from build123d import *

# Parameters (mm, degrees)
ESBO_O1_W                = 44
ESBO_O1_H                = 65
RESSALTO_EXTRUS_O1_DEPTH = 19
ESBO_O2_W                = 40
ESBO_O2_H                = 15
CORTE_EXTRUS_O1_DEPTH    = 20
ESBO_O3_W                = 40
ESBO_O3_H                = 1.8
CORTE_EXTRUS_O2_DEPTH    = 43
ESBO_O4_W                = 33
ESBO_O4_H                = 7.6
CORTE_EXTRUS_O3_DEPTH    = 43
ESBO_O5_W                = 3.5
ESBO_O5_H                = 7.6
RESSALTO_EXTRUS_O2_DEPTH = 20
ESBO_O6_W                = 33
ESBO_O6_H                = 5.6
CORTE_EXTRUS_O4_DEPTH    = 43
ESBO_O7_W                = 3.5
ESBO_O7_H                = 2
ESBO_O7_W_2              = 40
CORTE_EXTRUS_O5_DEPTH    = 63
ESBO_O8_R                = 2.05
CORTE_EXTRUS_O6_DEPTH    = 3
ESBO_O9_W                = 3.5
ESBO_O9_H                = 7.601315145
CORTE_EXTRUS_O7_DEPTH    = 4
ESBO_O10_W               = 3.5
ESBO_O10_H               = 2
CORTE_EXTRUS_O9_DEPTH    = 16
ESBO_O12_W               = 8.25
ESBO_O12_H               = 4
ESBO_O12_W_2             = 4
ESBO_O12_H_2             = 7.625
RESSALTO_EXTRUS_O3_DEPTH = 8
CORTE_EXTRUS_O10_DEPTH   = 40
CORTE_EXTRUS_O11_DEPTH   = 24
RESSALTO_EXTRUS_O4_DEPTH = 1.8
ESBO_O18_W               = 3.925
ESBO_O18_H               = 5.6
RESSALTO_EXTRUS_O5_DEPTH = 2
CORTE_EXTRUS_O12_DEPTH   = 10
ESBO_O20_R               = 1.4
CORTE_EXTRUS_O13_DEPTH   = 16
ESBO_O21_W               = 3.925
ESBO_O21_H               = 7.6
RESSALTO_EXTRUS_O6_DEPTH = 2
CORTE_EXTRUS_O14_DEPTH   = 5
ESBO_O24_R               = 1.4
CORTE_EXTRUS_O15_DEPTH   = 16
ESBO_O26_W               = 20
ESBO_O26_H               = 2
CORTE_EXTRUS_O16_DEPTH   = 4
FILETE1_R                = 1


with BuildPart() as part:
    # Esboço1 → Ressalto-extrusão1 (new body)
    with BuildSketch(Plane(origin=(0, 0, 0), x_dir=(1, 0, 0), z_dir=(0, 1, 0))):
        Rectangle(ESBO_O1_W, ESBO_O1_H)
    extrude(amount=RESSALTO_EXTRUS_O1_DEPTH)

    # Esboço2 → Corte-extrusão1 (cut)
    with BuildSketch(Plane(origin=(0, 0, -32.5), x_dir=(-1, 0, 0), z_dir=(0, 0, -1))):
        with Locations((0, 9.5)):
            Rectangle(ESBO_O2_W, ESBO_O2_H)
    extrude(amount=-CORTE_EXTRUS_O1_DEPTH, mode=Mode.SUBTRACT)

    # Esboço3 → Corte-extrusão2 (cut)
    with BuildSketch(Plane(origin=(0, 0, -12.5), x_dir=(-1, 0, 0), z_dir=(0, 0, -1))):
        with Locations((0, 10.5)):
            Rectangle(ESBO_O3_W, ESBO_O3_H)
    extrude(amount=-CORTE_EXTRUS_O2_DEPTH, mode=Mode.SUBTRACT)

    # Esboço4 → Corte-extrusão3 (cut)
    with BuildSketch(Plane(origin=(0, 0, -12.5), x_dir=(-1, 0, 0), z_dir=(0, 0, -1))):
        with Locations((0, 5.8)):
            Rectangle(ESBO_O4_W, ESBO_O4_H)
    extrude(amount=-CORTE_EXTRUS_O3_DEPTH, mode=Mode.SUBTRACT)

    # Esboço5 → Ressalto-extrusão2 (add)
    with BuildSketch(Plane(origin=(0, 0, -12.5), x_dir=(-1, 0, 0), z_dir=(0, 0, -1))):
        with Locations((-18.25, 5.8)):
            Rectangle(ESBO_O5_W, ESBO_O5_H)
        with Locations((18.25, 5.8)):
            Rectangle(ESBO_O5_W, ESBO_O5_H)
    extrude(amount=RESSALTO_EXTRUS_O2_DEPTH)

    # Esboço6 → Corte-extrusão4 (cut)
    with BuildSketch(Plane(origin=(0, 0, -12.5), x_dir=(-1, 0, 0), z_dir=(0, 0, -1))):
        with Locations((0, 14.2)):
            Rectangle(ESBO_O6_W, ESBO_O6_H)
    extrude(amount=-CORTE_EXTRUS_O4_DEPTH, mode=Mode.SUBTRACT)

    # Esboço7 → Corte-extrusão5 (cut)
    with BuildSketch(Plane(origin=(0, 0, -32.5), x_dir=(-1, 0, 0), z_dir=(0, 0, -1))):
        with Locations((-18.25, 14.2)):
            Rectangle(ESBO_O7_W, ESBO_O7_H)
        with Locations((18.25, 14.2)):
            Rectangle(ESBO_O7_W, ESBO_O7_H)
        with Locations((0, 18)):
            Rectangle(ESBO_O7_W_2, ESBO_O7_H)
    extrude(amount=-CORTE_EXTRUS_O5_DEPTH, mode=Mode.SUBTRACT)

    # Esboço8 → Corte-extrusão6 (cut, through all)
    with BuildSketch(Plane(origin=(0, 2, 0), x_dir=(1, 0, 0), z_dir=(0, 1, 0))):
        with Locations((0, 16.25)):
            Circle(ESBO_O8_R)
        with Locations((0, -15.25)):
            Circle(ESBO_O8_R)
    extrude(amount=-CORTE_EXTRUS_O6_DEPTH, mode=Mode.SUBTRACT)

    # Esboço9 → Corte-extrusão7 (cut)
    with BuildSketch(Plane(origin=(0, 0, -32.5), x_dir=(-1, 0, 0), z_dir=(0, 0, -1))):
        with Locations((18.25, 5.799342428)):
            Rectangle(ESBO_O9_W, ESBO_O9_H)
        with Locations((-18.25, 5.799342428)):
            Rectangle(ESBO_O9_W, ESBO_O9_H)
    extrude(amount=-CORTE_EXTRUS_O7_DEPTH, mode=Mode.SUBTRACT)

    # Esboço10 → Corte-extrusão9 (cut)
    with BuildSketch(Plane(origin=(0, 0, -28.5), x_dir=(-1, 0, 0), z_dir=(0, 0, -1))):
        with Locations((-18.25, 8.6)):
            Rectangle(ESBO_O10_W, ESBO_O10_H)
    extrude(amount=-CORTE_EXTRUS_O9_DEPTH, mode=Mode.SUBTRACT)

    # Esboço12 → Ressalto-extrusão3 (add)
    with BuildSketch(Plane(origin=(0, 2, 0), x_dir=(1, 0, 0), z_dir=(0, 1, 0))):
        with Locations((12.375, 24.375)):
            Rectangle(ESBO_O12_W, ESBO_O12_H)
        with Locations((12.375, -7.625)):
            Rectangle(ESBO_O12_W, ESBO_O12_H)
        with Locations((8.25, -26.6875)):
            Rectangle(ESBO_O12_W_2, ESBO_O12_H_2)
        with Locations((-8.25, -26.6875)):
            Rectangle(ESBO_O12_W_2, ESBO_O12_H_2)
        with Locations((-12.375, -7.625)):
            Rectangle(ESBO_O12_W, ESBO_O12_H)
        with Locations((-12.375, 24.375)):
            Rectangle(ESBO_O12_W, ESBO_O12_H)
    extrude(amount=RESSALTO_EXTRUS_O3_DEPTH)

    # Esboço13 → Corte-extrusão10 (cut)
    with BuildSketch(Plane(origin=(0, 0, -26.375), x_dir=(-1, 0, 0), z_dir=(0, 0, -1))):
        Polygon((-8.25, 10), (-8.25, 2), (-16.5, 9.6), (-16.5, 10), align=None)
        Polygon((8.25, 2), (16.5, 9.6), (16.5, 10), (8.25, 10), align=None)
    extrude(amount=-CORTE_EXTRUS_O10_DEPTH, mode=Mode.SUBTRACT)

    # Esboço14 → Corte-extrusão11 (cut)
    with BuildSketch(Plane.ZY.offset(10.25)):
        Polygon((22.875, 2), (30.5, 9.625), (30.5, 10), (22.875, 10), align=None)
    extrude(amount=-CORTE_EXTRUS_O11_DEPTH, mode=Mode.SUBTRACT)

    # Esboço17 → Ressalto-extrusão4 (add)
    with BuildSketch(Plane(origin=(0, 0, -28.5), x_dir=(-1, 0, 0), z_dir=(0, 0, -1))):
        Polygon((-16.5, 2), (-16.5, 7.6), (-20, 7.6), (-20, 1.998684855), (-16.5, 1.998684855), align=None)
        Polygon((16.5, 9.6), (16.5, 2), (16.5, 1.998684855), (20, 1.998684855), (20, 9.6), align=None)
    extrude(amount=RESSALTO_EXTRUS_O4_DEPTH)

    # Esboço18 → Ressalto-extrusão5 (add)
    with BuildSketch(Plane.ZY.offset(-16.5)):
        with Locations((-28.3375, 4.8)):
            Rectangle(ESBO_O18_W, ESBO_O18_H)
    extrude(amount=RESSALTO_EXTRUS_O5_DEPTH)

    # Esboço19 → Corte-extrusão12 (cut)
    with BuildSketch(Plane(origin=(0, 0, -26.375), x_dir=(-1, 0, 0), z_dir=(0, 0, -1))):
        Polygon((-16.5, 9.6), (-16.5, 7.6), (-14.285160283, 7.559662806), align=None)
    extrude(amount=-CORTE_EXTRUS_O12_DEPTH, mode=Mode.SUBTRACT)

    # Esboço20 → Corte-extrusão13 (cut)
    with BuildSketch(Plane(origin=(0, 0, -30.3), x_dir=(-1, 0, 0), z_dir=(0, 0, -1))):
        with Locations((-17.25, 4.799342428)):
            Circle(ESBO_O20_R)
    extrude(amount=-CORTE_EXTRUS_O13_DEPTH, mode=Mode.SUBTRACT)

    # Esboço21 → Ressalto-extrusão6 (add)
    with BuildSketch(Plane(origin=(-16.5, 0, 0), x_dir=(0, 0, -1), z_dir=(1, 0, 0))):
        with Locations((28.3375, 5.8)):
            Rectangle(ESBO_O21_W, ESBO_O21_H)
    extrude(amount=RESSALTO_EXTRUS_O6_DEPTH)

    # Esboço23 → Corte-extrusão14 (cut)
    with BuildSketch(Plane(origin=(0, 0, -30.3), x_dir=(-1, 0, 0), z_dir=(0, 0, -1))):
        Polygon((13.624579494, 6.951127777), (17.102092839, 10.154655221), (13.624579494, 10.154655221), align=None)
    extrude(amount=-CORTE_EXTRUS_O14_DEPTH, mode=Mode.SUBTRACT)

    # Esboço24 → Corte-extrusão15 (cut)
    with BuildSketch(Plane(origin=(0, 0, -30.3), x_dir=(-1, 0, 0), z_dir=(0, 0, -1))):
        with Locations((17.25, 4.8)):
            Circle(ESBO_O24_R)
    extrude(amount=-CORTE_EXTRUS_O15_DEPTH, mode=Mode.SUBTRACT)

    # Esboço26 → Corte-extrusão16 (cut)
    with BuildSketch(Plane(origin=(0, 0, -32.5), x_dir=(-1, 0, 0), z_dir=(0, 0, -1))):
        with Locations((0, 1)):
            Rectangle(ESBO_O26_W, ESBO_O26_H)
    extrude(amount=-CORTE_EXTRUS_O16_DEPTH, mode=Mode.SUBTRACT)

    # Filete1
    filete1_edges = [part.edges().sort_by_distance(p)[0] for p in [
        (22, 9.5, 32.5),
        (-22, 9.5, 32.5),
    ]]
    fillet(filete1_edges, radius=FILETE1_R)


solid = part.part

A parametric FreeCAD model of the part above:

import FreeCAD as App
import Part
import Sketcher

V = App.Vector
Q = App.Units.Quantity


def edges_at(feature, points):
    """Names of the edges that pass closest to the given points."""
    edges = feature.Shape.Edges
    near = lambda p: min(range(len(edges)), key=lambda i: edges[i].distToShape(Part.Vertex(*p))[0])
    return sorted({f"Edge{near(p) + 1}" for p in points})

doc = App.newDocument("Part")
params = doc.addObject("Spreadsheet::Sheet", "Params")
for row, (alias, value) in enumerate([
    ("sketch1_width", "44 mm"),
    ("sketch1_height", "65 mm"),
    ("pad1_length", "19 mm"),
    ("sketch2_width", "40 mm"),
    ("sketch2_height", "15 mm"),
    ("pocket1_length", "20 mm"),
    ("sketch3_width", "40 mm"),
    ("sketch3_height", "1.8 mm"),
    ("pocket2_length", "43 mm"),
    ("sketch4_width", "33 mm"),
    ("sketch4_height", "7.6 mm"),
    ("pocket3_length", "43 mm"),
    ("sketch5_width", "3.5 mm"),
    ("sketch5_height", "7.6 mm"),
    ("pad2_length", "20 mm"),
    ("sketch6_width", "33 mm"),
    ("sketch6_height", "5.6 mm"),
    ("pocket4_length", "43 mm"),
    ("sketch7_width", "40 mm"),
    ("sketch7_height", "2 mm"),
    ("sketch7_width2", "3.5 mm"),
    ("pocket5_length", "63 mm"),
    ("sketch8_diameter", "4.1 mm"),
    ("sketch9_width", "3.5 mm"),
    ("pocket7_length", "4 mm"),
    ("sketch10_height", "2 mm"),
    ("sketch10_width", "3.5 mm"),
    ("pocket8_length", "16 mm"),
    ("sketch11_width", "4 mm"),
    ("sketch11_width2", "8.25 mm"),
    ("pad3_length", "8 mm"),
    ("sketch12_height", "8 mm"),
    ("sketch12_height2", "0.4 mm"),
    ("sketch12_width", "8.25 mm"),
    ("pocket9_length", "40 mm"),
    ("sketch13_width", "8 mm"),
    ("pocket10_length", "24 mm"),
    ("sketch14_width", "3.5 mm"),
    ("pad4_length", "1.8 mm"),
    ("sketch15_width", "5.6 mm"),
    ("pad5_length", "2 mm"),
    ("sketch16_height", "2 mm"),
    ("pocket11_length", "10 mm"),
    ("sketch17_diameter", "2.8 mm"),
    ("pocket12_length", "16 mm"),
    ("sketch18_width", "7.6 mm"),
    ("pad6_length", "2 mm"),
    ("pocket13_length", "5 mm"),
    ("sketch20_diameter", "2.8 mm"),
    ("pocket14_length", "16 mm"),
    ("sketch21_width", "20 mm"),
    ("sketch21_height", "2 mm"),
    ("pocket15_length", "4 mm"),
    ("fillet_radius", "1 mm"),
], start=1):
    params.set(f"A{row}", alias)
    params.set(f"B{row}", "=" + value)
    params.setAlias(f"B{row}", alias)

body = doc.addObject("PartDesign::Body", "Body")

# Sketch on XZ plane
sketch1 = body.newObject("Sketcher::SketchObject", "Sketch")
sketch1.AttachmentSupport = (doc.getObject("XZ_Plane"), [""])
sketch1.MapMode = "FlatFace"
sketch1.addGeometry(Part.LineSegment(V(-22, -32, 0), V(-22, 32, 0)), False)
sketch1.addGeometry(Part.LineSegment(V(-22, 32, 0), V(22, 32, 0)), False)
sketch1.addGeometry(Part.LineSegment(V(22, 32, 0), V(22, -32, 0)), False)
sketch1.addGeometry(Part.LineSegment(V(22, -32, 0), V(-22, -32, 0)), False)
sketch1.addConstraint(Sketcher.Constraint("Coincident", 0, 2, 1, 1))
sketch1.addConstraint(Sketcher.Constraint("Coincident", 1, 2, 2, 1))
sketch1.addConstraint(Sketcher.Constraint("Coincident", 2, 2, 3, 1))
sketch1.addConstraint(Sketcher.Constraint("Coincident", 3, 2, 0, 1))
sketch1.addConstraint(Sketcher.Constraint("Vertical", 0))
sketch1.addConstraint(Sketcher.Constraint("Horizontal", 1))
sketch1.addConstraint(Sketcher.Constraint("Vertical", 2))
sketch1.addConstraint(Sketcher.Constraint("Horizontal", 3))
sketch1.addConstraint(Sketcher.Constraint("Symmetric", 0, 2, 2, 2, -1, 1))
sketch1.addConstraint(Sketcher.Constraint("DistanceX", 1, 1, 1, 2, 44.0))
sketch1.addConstraint(Sketcher.Constraint("DistanceY", 0, 1, 0, 2, 65.0))
sketch1.setExpression("Constraints[9]", "Params.sketch1_width")
sketch1.setExpression("Constraints[10]", "Params.sketch1_height")
pad1 = body.newObject("PartDesign::Pad", "Pad")
pad1.Profile = sketch1
pad1.setExpression("Length", "Params.pad1_length")
pad1.Reversed = True

# Sketch on XY plane
sketch2 = body.newObject("Sketcher::SketchObject", "Sketch001")
sketch2.AttachmentSupport = (doc.getObject("XY_Plane"), [""])
sketch2.MapMode = "FlatFace"
sketch2.AttachmentOffset = App.Placement(V(0, 0, -32.5), App.Rotation())
sketch2.addGeometry(Part.LineSegment(V(20, 17, 0), V(20, 2, 0)), False)
sketch2.addGeometry(Part.LineSegment(V(20, 2, 0), V(-20, 2, 0)), False)
sketch2.addGeometry(Part.LineSegment(V(-20, 2, 0), V(-20, 17, 0)), False)
sketch2.addGeometry(Part.LineSegment(V(-20, 17, 0), V(20, 17, 0)), False)
sketch2.addConstraint(Sketcher.Constraint("Coincident", 0, 2, 1, 1))
sketch2.addConstraint(Sketcher.Constraint("Coincident", 1, 2, 2, 1))
sketch2.addConstraint(Sketcher.Constraint("Coincident", 2, 2, 3, 1))
sketch2.addConstraint(Sketcher.Constraint("Coincident", 3, 2, 0, 1))
sketch2.addConstraint(Sketcher.Constraint("Vertical", 0))
sketch2.addConstraint(Sketcher.Constraint("Horizontal", 1))
sketch2.addConstraint(Sketcher.Constraint("Vertical", 2))
sketch2.addConstraint(Sketcher.Constraint("Horizontal", 3))
sketch2.addConstraint(Sketcher.Constraint("DistanceX", 1, 2, 1, 1, 40.0))
sketch2.addConstraint(Sketcher.Constraint("DistanceY", 0, 2, 0, 1, 15.0))
sketch2.addConstraint(Sketcher.Constraint("DistanceX", -1, 1, 0, 2, 20.0))
sketch2.addConstraint(Sketcher.Constraint("DistanceY", -1, 1, 0, 2, 2.0))
sketch2.setExpression("Constraints[8]", "Params.sketch2_width")
sketch2.setExpression("Constraints[9]", "Params.sketch2_height")
pocket1 = body.newObject("PartDesign::Pocket", "Pocket")
pocket1.Profile = sketch2
pocket1.setExpression("Length", "Params.pocket1_length")
pocket1.Reversed = True

# Sketch on XY plane
sketch3 = body.newObject("Sketcher::SketchObject", "Sketch002")
sketch3.AttachmentSupport = (doc.getObject("XY_Plane"), [""])
sketch3.MapMode = "FlatFace"
sketch3.AttachmentOffset = App.Placement(V(0, 0, -12.5), App.Rotation())
sketch3.addGeometry(Part.LineSegment(V(20, 11.4, 0), V(20, 9.6, 0)), False)
sketch3.addGeometry(Part.LineSegment(V(20, 9.6, 0), V(-20, 9.6, 0)), False)
sketch3.addGeometry(Part.LineSegment(V(-20, 9.6, 0), V(-20, 11.4, 0)), False)
sketch3.addGeometry(Part.LineSegment(V(-20, 11.4, 0), V(20, 11.4, 0)), False)
sketch3.addConstraint(Sketcher.Constraint("Coincident", 0, 2, 1, 1))
sketch3.addConstraint(Sketcher.Constraint("Coincident", 1, 2, 2, 1))
sketch3.addConstraint(Sketcher.Constraint("Coincident", 2, 2, 3, 1))
sketch3.addConstraint(Sketcher.Constraint("Coincident", 3, 2, 0, 1))
sketch3.addConstraint(Sketcher.Constraint("Vertical", 0))
sketch3.addConstraint(Sketcher.Constraint("Horizontal", 1))
sketch3.addConstraint(Sketcher.Constraint("Vertical", 2))
sketch3.addConstraint(Sketcher.Constraint("Horizontal", 3))
sketch3.addConstraint(Sketcher.Constraint("DistanceX", 1, 2, 1, 1, 40.0))
sketch3.addConstraint(Sketcher.Constraint("DistanceY", 0, 2, 0, 1, 1.8))
sketch3.addConstraint(Sketcher.Constraint("DistanceX", -1, 1, 0, 2, 20.0))
sketch3.addConstraint(Sketcher.Constraint("DistanceY", -1, 1, 0, 2, 9.6))
sketch3.setExpression("Constraints[8]", "Params.sketch3_width")
sketch3.setExpression("Constraints[9]", "Params.sketch3_height")
pocket2 = body.newObject("PartDesign::Pocket", "Pocket001")
pocket2.Profile = sketch3
pocket2.setExpression("Length", "Params.pocket2_length")
pocket2.Reversed = True

# Sketch on XY plane
sketch4 = body.newObject("Sketcher::SketchObject", "Sketch003")
sketch4.AttachmentSupport = (doc.getObject("XY_Plane"), [""])
sketch4.MapMode = "FlatFace"
sketch4.AttachmentOffset = App.Placement(V(0, 0, -12.5), App.Rotation())
sketch4.addGeometry(Part.LineSegment(V(16, 10, 0), V(16, 2, 0)), False)
sketch4.addGeometry(Part.LineSegment(V(16, 2, 0), V(-16, 2, 0)), False)
sketch4.addGeometry(Part.LineSegment(V(-16, 2, 0), V(-16, 10, 0)), False)
sketch4.addGeometry(Part.LineSegment(V(-16, 10, 0), V(16, 10, 0)), False)
sketch4.addConstraint(Sketcher.Constraint("Coincident", 0, 2, 1, 1))
sketch4.addConstraint(Sketcher.Constraint("Coincident", 1, 2, 2, 1))
sketch4.addConstraint(Sketcher.Constraint("Coincident", 2, 2, 3, 1))
sketch4.addConstraint(Sketcher.Constraint("Coincident", 3, 2, 0, 1))
sketch4.addConstraint(Sketcher.Constraint("Vertical", 0))
sketch4.addConstraint(Sketcher.Constraint("Horizontal", 1))
sketch4.addConstraint(Sketcher.Constraint("Vertical", 2))
sketch4.addConstraint(Sketcher.Constraint("Horizontal", 3))
sketch4.addConstraint(Sketcher.Constraint("DistanceX", 1, 2, 1, 1, 33.0))
sketch4.addConstraint(Sketcher.Constraint("DistanceY", 0, 2, 0, 1, 7.6))
sketch4.addConstraint(Sketcher.Constraint("DistanceY", -1, 1, 0, 2, 2.0))
sketch4.addConstraint(Sketcher.Constraint("DistanceX", -1, 1, 0, 2, 16.5))
sketch4.setExpression("Constraints[8]", "Params.sketch4_width")
sketch4.setExpression("Constraints[9]", "Params.sketch4_height")
pocket3 = body.newObject("PartDesign::Pocket", "Pocket002")
pocket3.Profile = sketch4
pocket3.setExpression("Length", "Params.pocket3_length")
pocket3.Reversed = True

# Sketch on XY plane
sketch5 = body.newObject("Sketcher::SketchObject", "Sketch004")
sketch5.AttachmentSupport = (doc.getObject("XY_Plane"), [""])
sketch5.MapMode = "FlatFace"
sketch5.AttachmentOffset = App.Placement(V(0, 0, -12.5), App.Rotation())
sketch5.addGeometry(Part.LineSegment(V(20, 9.6, 0), V(20, 2, 0)), False)
sketch5.addGeometry(Part.LineSegment(V(20, 2, 0), V(16.5, 2, 0)), False)
sketch5.addGeometry(Part.LineSegment(V(16.5, 2, 0), V(16.5, 9.6, 0)), False)
sketch5.addGeometry(Part.LineSegment(V(16.5, 9.6, 0), V(20, 9.6, 0)), False)
sketch5.addGeometry(Part.LineSegment(V(-16.5, 9.6, 0), V(-16.5, 2, 0)), False)
sketch5.addGeometry(Part.LineSegment(V(-16.5, 2, 0), V(-20, 2, 0)), False)
sketch5.addGeometry(Part.LineSegment(V(-20, 2, 0), V(-20, 9.6, 0)), False)
sketch5.addGeometry(Part.LineSegment(V(-20, 9.6, 0), V(-16.5, 9.6, 0)), False)
sketch5.addConstraint(Sketcher.Constraint("Coincident", 0, 2, 1, 1))
sketch5.addConstraint(Sketcher.Constraint("Coincident", 1, 2, 2, 1))
sketch5.addConstraint(Sketcher.Constraint("Coincident", 2, 2, 3, 1))
sketch5.addConstraint(Sketcher.Constraint("Coincident", 3, 2, 0, 1))
sketch5.addConstraint(Sketcher.Constraint("Coincident", 4, 2, 5, 1))
sketch5.addConstraint(Sketcher.Constraint("Coincident", 5, 2, 6, 1))
sketch5.addConstraint(Sketcher.Constraint("Coincident", 6, 2, 7, 1))
sketch5.addConstraint(Sketcher.Constraint("Coincident", 7, 2, 4, 1))
sketch5.addConstraint(Sketcher.Constraint("Vertical", 0))
sketch5.addConstraint(Sketcher.Constraint("Horizontal", 1))
sketch5.addConstraint(Sketcher.Constraint("Vertical", 2))
sketch5.addConstraint(Sketcher.Constraint("Horizontal", 3))
sketch5.addConstraint(Sketcher.Constraint("Vertical", 4))
sketch5.addConstraint(Sketcher.Constraint("Horizontal", 5))
sketch5.addConstraint(Sketcher.Constraint("Vertical", 6))
sketch5.addConstraint(Sketcher.Constraint("Horizontal", 7))
sketch5.addConstraint(Sketcher.Constraint("Symmetric", 1, 2, 4, 2, -2))
sketch5.addConstraint(Sketcher.Constraint("Symmetric", 3, 2, 6, 2, -2))
sketch5.addConstraint(Sketcher.Constraint("DistanceX", 1, 2, 1, 1, 3.5))
sketch5.addConstraint(Sketcher.Constraint("DistanceY", 0, 2, 0, 1, 7.6))
sketch5.addConstraint(Sketcher.Constraint("DistanceX", -1, 1, 0, 2, 20.0))
sketch5.addConstraint(Sketcher.Constraint("DistanceY", -1, 1, 0, 2, 2.0))
sketch5.setExpression("Constraints[18]", "Params.sketch5_width")
sketch5.setExpression("Constraints[19]", "Params.sketch5_height")
pad2 = body.newObject("PartDesign::Pad", "Pad001")
pad2.Profile = sketch5
pad2.setExpression("Length", "Params.pad2_length")
pad2.Reversed = True

# Sketch on XY plane
sketch6 = body.newObject("Sketcher::SketchObject", "Sketch005")
sketch6.AttachmentSupport = (doc.getObject("XY_Plane"), [""])
sketch6.MapMode = "FlatFace"
sketch6.AttachmentOffset = App.Placement(V(0, 0, -12.5), App.Rotation())
sketch6.addGeometry(Part.LineSegment(V(16, 17, 0), V(16, 11, 0)), False)
sketch6.addGeometry(Part.LineSegment(V(16, 11, 0), V(-16, 11, 0)), False)
sketch6.addGeometry(Part.LineSegment(V(-16, 11, 0), V(-16, 17, 0)), False)
sketch6.addGeometry(Part.LineSegment(V(-16, 17, 0), V(16, 17, 0)), False)
sketch6.addConstraint(Sketcher.Constraint("Coincident", 0, 2, 1, 1))
sketch6.addConstraint(Sketcher.Constraint("Coincident", 1, 2, 2, 1))
sketch6.addConstraint(Sketcher.Constraint("Coincident", 2, 2, 3, 1))
sketch6.addConstraint(Sketcher.Constraint("Coincident", 3, 2, 0, 1))
sketch6.addConstraint(Sketcher.Constraint("Vertical", 0))
sketch6.addConstraint(Sketcher.Constraint("Horizontal", 1))
sketch6.addConstraint(Sketcher.Constraint("Vertical", 2))
sketch6.addConstraint(Sketcher.Constraint("Horizontal", 3))
sketch6.addConstraint(Sketcher.Constraint("DistanceX", 1, 2, 1, 1, 33.0))
sketch6.addConstraint(Sketcher.Constraint("DistanceY", 0, 2, 0, 1, 5.6))
sketch6.addConstraint(Sketcher.Constraint("DistanceY", -1, 1, 2, 2, 17.0))
sketch6.addConstraint(Sketcher.Constraint("DistanceX", -1, 1, 0, 2, 16.5))
sketch6.setExpression("Constraints[8]", "Params.sketch6_width")
sketch6.setExpression("Constraints[9]", "Params.sketch6_height")
pocket4 = body.newObject("PartDesign::Pocket", "Pocket003")
pocket4.Profile = sketch6
pocket4.setExpression("Length", "Params.pocket4_length")
pocket4.Reversed = True

# Sketch on XY plane
sketch7 = body.newObject("Sketcher::SketchObject", "Sketch006")
sketch7.AttachmentSupport = (doc.getObject("XY_Plane"), [""])
sketch7.MapMode = "FlatFace"
sketch7.AttachmentOffset = App.Placement(V(0, 0, -32.5), App.Rotation())
sketch7.addGeometry(Part.LineSegment(V(20, 15.2, 0), V(20, 13.2, 0)), False)
sketch7.addGeometry(Part.LineSegment(V(20, 13.2, 0), V(16.5, 13.2, 0)), False)
sketch7.addGeometry(Part.LineSegment(V(16.5, 13.2, 0), V(16.5, 15.2, 0)), False)
sketch7.addGeometry(Part.LineSegment(V(16.5, 15.2, 0), V(20, 15.2, 0)), False)
sketch7.addGeometry(Part.LineSegment(V(-16.5, 15.2, 0), V(-16.5, 13.2, 0)), False)
sketch7.addGeometry(Part.LineSegment(V(-16.5, 13.2, 0), V(-20, 13.2, 0)), False)
sketch7.addGeometry(Part.LineSegment(V(-20, 13.2, 0), V(-20, 15.2, 0)), False)
sketch7.addGeometry(Part.LineSegment(V(-20, 15.2, 0), V(-16.5, 15.2, 0)), False)
sketch7.addGeometry(Part.LineSegment(V(20, 19, 0), V(20, 17, 0)), False)
sketch7.addGeometry(Part.LineSegment(V(20, 17, 0), V(-20, 17, 0)), False)
sketch7.addGeometry(Part.LineSegment(V(-20, 17, 0), V(-20, 19, 0)), False)
sketch7.addGeometry(Part.LineSegment(V(-20, 19, 0), V(20, 19, 0)), False)
sketch7.addConstraint(Sketcher.Constraint("Coincident", 0, 2, 1, 1))
sketch7.addConstraint(Sketcher.Constraint("Coincident", 1, 2, 2, 1))
sketch7.addConstraint(Sketcher.Constraint("Coincident", 2, 2, 3, 1))
sketch7.addConstraint(Sketcher.Constraint("Coincident", 3, 2, 0, 1))
sketch7.addConstraint(Sketcher.Constraint("Coincident", 4, 2, 5, 1))
sketch7.addConstraint(Sketcher.Constraint("Coincident", 5, 2, 6, 1))
sketch7.addConstraint(Sketcher.Constraint("Coincident", 6, 2, 7, 1))
sketch7.addConstraint(Sketcher.Constraint("Coincident", 7, 2, 4, 1))
sketch7.addConstraint(Sketcher.Constraint("Coincident", 8, 2, 9, 1))
sketch7.addConstraint(Sketcher.Constraint("Coincident", 9, 2, 10, 1))
sketch7.addConstraint(Sketcher.Constraint("Coincident", 10, 2, 11, 1))
sketch7.addConstraint(Sketcher.Constraint("Coincident", 11, 2, 8, 1))
sketch7.addConstraint(Sketcher.Constraint("Vertical", 0))
sketch7.addConstraint(Sketcher.Constraint("Horizontal", 1))
sketch7.addConstraint(Sketcher.Constraint("Vertical", 2))
sketch7.addConstraint(Sketcher.Constraint("Horizontal", 3))
sketch7.addConstraint(Sketcher.Constraint("Vertical", 4))
sketch7.addConstraint(Sketcher.Constraint("Horizontal", 5))
sketch7.addConstraint(Sketcher.Constraint("Vertical", 6))
sketch7.addConstraint(Sketcher.Constraint("Horizontal", 7))
sketch7.addConstraint(Sketcher.Constraint("Vertical", 8))
sketch7.addConstraint(Sketcher.Constraint("Horizontal", 9))
sketch7.addConstraint(Sketcher.Constraint("Vertical", 10))
sketch7.addConstraint(Sketcher.Constraint("Horizontal", 11))
sketch7.addConstraint(Sketcher.Constraint("Symmetric", 1, 2, 4, 2, -2))
sketch7.addConstraint(Sketcher.Constraint("Symmetric", 3, 2, 6, 2, -2))
sketch7.addConstraint(Sketcher.Constraint("Vertical", 3, 2, 8, 2))
sketch7.addConstraint(Sketcher.Constraint("Vertical", 6, 2, 9, 2))
sketch7.addConstraint(Sketcher.Constraint("Equal", 6, 8))
sketch7.addConstraint(Sketcher.Constraint("DistanceX", 9, 2, 9, 1, 40.0))
sketch7.addConstraint(Sketcher.Constraint("DistanceY", 0, 2, 0, 1, 2.0))
sketch7.addConstraint(Sketcher.Constraint("DistanceX", 1, 2, 1, 1, 3.5))
sketch7.addConstraint(Sketcher.Constraint("DistanceY", -1, 1, 8, 2, 17.0))
sketch7.addConstraint(Sketcher.Constraint("DistanceY", -1, 1, 0, 2, 13.2))
sketch7.setExpression("Constraints[29]", "Params.sketch7_width")
sketch7.setExpression("Constraints[30]", "Params.sketch7_height")
sketch7.setExpression("Constraints[31]", "Params.sketch7_width2")
pocket5 = body.newObject("PartDesign::Pocket", "Pocket004")
pocket5.Profile = sketch7
pocket5.setExpression("Length", "Params.pocket5_length")
pocket5.Reversed = True

# Sketch on XZ plane
sketch8 = body.newObject("Sketcher::SketchObject", "Sketch007")
sketch8.AttachmentSupport = (doc.getObject("XZ_Plane"), [""])
sketch8.MapMode = "FlatFace"
sketch8.AttachmentOffset = App.Placement(V(0, 0, -2), App.Rotation())
sketch8.addGeometry(Part.Circle(V(0, -16.2, 0), V(0, 0, 1), 2), False)
sketch8.addGeometry(Part.Circle(V(0, 15.2, 0), V(0, 0, 1), 2), False)
sketch8.addConstraint(Sketcher.Constraint("Equal", 0, 1))
sketch8.addConstraint(Sketcher.Constraint("PointOnObject", 0, 3, -2))
sketch8.addConstraint(Sketcher.Constraint("PointOnObject", 1, 3, -2))
sketch8.addConstraint(Sketcher.Constraint("Diameter", 0, 4.1))
sketch8.addConstraint(Sketcher.Constraint("DistanceY", 0, 3, 1, 3, 31.5))
sketch8.addConstraint(Sketcher.Constraint("DistanceY", 0, 3, -1, 1, 16.25))
sketch8.setExpression("Constraints[3]", "Params.sketch8_diameter")
pocket6 = body.newObject("PartDesign::Pocket", "Pocket005")
pocket6.Profile = sketch8
pocket6.Type = "ThroughAll"
pocket6.Reversed = True

# Sketch on XY plane
sketch9 = body.newObject("Sketcher::SketchObject", "Sketch008")
sketch9.AttachmentSupport = (doc.getObject("XY_Plane"), [""])
sketch9.MapMode = "FlatFace"
sketch9.AttachmentOffset = App.Placement(V(0, 0, -32.5), App.Rotation())
sketch9.addGeometry(Part.LineSegment(V(-16.5, 9.6, 0), V(-16.5, 2, 0)), False)
sketch9.addGeometry(Part.LineSegment(V(-16.5, 2, 0), V(-20, 2, 0)), False)
sketch9.addGeometry(Part.LineSegment(V(-20, 2, 0), V(-20, 9.6, 0)), False)
sketch9.addGeometry(Part.LineSegment(V(-20, 9.6, 0), V(-16.5, 9.6, 0)), False)
sketch9.addGeometry(Part.LineSegment(V(20, 9.6, 0), V(20, 2, 0)), False)
sketch9.addGeometry(Part.LineSegment(V(20, 2, 0), V(16.5, 2, 0)), False)
sketch9.addGeometry(Part.LineSegment(V(16.5, 2, 0), V(16.5, 9.6, 0)), False)
sketch9.addGeometry(Part.LineSegment(V(16.5, 9.6, 0), V(20, 9.6, 0)), False)
sketch9.addConstraint(Sketcher.Constraint("Coincident", 0, 2, 1, 1))
sketch9.addConstraint(Sketcher.Constraint("Coincident", 1, 2, 2, 1))
sketch9.addConstraint(Sketcher.Constraint("Coincident", 2, 2, 3, 1))
sketch9.addConstraint(Sketcher.Constraint("Coincident", 3, 2, 0, 1))
sketch9.addConstraint(Sketcher.Constraint("Coincident", 4, 2, 5, 1))
sketch9.addConstraint(Sketcher.Constraint("Coincident", 5, 2, 6, 1))
sketch9.addConstraint(Sketcher.Constraint("Coincident", 6, 2, 7, 1))
sketch9.addConstraint(Sketcher.Constraint("Coincident", 7, 2, 4, 1))
sketch9.addConstraint(Sketcher.Constraint("Vertical", 0))
sketch9.addConstraint(Sketcher.Constraint("Horizontal", 1))
sketch9.addConstraint(Sketcher.Constraint("Vertical", 2))
sketch9.addConstraint(Sketcher.Constraint("Horizontal", 3))
sketch9.addConstraint(Sketcher.Constraint("Vertical", 4))
sketch9.addConstraint(Sketcher.Constraint("Horizontal", 5))
sketch9.addConstraint(Sketcher.Constraint("Vertical", 6))
sketch9.addConstraint(Sketcher.Constraint("Horizontal", 7))
sketch9.addConstraint(Sketcher.Constraint("Symmetric", 1, 2, 4, 2, -2))
sketch9.addConstraint(Sketcher.Constraint("Symmetric", 3, 2, 6, 2, -2))
sketch9.addConstraint(Sketcher.Constraint("DistanceX", 1, 2, 1, 1, 3.5))
sketch9.addConstraint(Sketcher.Constraint("DistanceX", 1, 2, -1, 1, 20.0))
sketch9.addConstraint(Sketcher.Constraint("DistanceY", -1, 1, 2, 2, 9.6))
sketch9.addConstraint(Sketcher.Constraint("DistanceY", 0, 2, 0, 1, 7.601315))
sketch9.setExpression("Constraints[18]", "Params.sketch9_width")
pocket7 = body.newObject("PartDesign::Pocket", "Pocket006")
pocket7.Profile = sketch9
pocket7.setExpression("Length", "Params.pocket7_length")
pocket7.Reversed = True

# Sketch on XY plane
sketch10 = body.newObject("Sketcher::SketchObject", "Sketch009")
sketch10.AttachmentSupport = (doc.getObject("XY_Plane"), [""])
sketch10.MapMode = "FlatFace"
sketch10.AttachmentOffset = App.Placement(V(0, 0, -28.5), App.Rotation())
sketch10.addGeometry(Part.LineSegment(V(20, 9.6, 0), V(20, 7.6, 0)), False)
sketch10.addGeometry(Part.LineSegment(V(20, 7.6, 0), V(16.5, 7.6, 0)), False)
sketch10.addGeometry(Part.LineSegment(V(16.5, 7.6, 0), V(16.5, 9.6, 0)), False)
sketch10.addGeometry(Part.LineSegment(V(16.5, 9.6, 0), V(20, 9.6, 0)), False)
sketch10.addConstraint(Sketcher.Constraint("Coincident", 0, 2, 1, 1))
sketch10.addConstraint(Sketcher.Constraint("Coincident", 1, 2, 2, 1))
sketch10.addConstraint(Sketcher.Constraint("Coincident", 2, 2, 3, 1))
sketch10.addConstraint(Sketcher.Constraint("Coincident", 3, 2, 0, 1))
sketch10.addConstraint(Sketcher.Constraint("Vertical", 0))
sketch10.addConstraint(Sketcher.Constraint("Horizontal", 1))
sketch10.addConstraint(Sketcher.Constraint("Vertical", 2))
sketch10.addConstraint(Sketcher.Constraint("Horizontal", 3))
sketch10.addConstraint(Sketcher.Constraint("DistanceY", 0, 2, 0, 1, 2.0))
sketch10.addConstraint(Sketcher.Constraint("DistanceX", 1, 2, 1, 1, 3.5))
sketch10.addConstraint(Sketcher.Constraint("DistanceX", -1, 1, 0, 2, 20.0))
sketch10.addConstraint(Sketcher.Constraint("DistanceY", -1, 1, 0, 2, 7.6))
sketch10.setExpression("Constraints[8]", "Params.sketch10_height")
sketch10.setExpression("Constraints[9]", "Params.sketch10_width")
pocket8 = body.newObject("PartDesign::Pocket", "Pocket007")
pocket8.Profile = sketch10
pocket8.setExpression("Length", "Params.pocket8_length")
pocket8.Reversed = True

# Sketch on XZ plane
sketch11 = body.newObject("Sketcher::SketchObject", "Sketch010")
sketch11.AttachmentSupport = (doc.getObject("XZ_Plane"), [""])
sketch11.MapMode = "FlatFace"
sketch11.AttachmentOffset = App.Placement(V(0, 0, -2), App.Rotation())
sketch11.addGeometry(Part.LineSegment(V(8.2, -26.4, 0), V(8.2, -22.4, 0)), False)
sketch11.addGeometry(Part.LineSegment(V(8.2, -22.4, 0), V(16.5, -22.4, 0)), False)
sketch11.addGeometry(Part.LineSegment(V(16.5, -22.4, 0), V(16.5, -26.4, 0)), False)
sketch11.addGeometry(Part.LineSegment(V(16.5, -26.4, 0), V(8.2, -26.4, 0)), False)
sketch11.addGeometry(Part.LineSegment(V(8.2, 5.6, 0), V(8.2, 9.6, 0)), False)
sketch11.addGeometry(Part.LineSegment(V(8.2, 9.6, 0), V(16.5, 9.6, 0)), False)
sketch11.addGeometry(Part.LineSegment(V(16.5, 9.6, 0), V(16.5, 5.6, 0)), False)
sketch11.addGeometry(Part.LineSegment(V(16.5, 5.6, 0), V(8.2, 5.6, 0)), False)
sketch11.addGeometry(Part.LineSegment(V(6.2, 22.9, 0), V(6.2, 30.5, 0)), False)
sketch11.addGeometry(Part.LineSegment(V(6.2, 30.5, 0), V(10.2, 30.5, 0)), False)
sketch11.addGeometry(Part.LineSegment(V(10.2, 30.5, 0), V(10.2, 22.9, 0)), False)
sketch11.addGeometry(Part.LineSegment(V(10.2, 22.9, 0), V(6.2, 22.9, 0)), False)
sketch11.addGeometry(Part.LineSegment(V(-10.2, 22.9, 0), V(-10.2, 30.5, 0)), False)
sketch11.addGeometry(Part.LineSegment(V(-10.2, 30.5, 0), V(-6.2, 30.5, 0)), False)
sketch11.addGeometry(Part.LineSegment(V(-6.2, 30.5, 0), V(-6.2, 22.9, 0)), False)
sketch11.addGeometry(Part.LineSegment(V(-6.2, 22.9, 0), V(-10.2, 22.9, 0)), False)
sketch11.addGeometry(Part.LineSegment(V(-16.5, 5.6, 0), V(-16.5, 9.6, 0)), False)
sketch11.addGeometry(Part.LineSegment(V(-16.5, 9.6, 0), V(-8.2, 9.6, 0)), False)
sketch11.addGeometry(Part.LineSegment(V(-8.2, 9.6, 0), V(-8.2, 5.6, 0)), False)
sketch11.addGeometry(Part.LineSegment(V(-8.2, 5.6, 0), V(-16.5, 5.6, 0)), False)
sketch11.addGeometry(Part.LineSegment(V(-16.5, -26.4, 0), V(-16.5, -22.4, 0)), False)
sketch11.addGeometry(Part.LineSegment(V(-16.5, -22.4, 0), V(-8.2, -22.4, 0)), False)
sketch11.addGeometry(Part.LineSegment(V(-8.2, -22.4, 0), V(-8.2, -26.4, 0)), False)
sketch11.addGeometry(Part.LineSegment(V(-8.2, -26.4, 0), V(-16.5, -26.4, 0)), False)
sketch11.addConstraint(Sketcher.Constraint("Coincident", 0, 2, 1, 1))
sketch11.addConstraint(Sketcher.Constraint("Coincident", 1, 2, 2, 1))
sketch11.addConstraint(Sketcher.Constraint("Coincident", 2, 2, 3, 1))
sketch11.addConstraint(Sketcher.Constraint("Coincident", 3, 2, 0, 1))
sketch11.addConstraint(Sketcher.Constraint("Coincident", 4, 2, 5, 1))
sketch11.addConstraint(Sketcher.Constraint("Coincident", 5, 2, 6, 1))
sketch11.addConstraint(Sketcher.Constraint("Coincident", 6, 2, 7, 1))
sketch11.addConstraint(Sketcher.Constraint("Coincident", 7, 2, 4, 1))
sketch11.addConstraint(Sketcher.Constraint("Coincident", 8, 2, 9, 1))
sketch11.addConstraint(Sketcher.Constraint("Coincident", 9, 2, 10, 1))
sketch11.addConstraint(Sketcher.Constraint("Coincident", 10, 2, 11, 1))
sketch11.addConstraint(Sketcher.Constraint("Coincident", 11, 2, 8, 1))
sketch11.addConstraint(Sketcher.Constraint("Coincident", 12, 2, 13, 1))
sketch11.addConstraint(Sketcher.Constraint("Coincident", 13, 2, 14, 1))
sketch11.addConstraint(Sketcher.Constraint("Coincident", 14, 2, 15, 1))
sketch11.addConstraint(Sketcher.Constraint("Coincident", 15, 2, 12, 1))
sketch11.addConstraint(Sketcher.Constraint("Coincident", 16, 2, 17, 1))
sketch11.addConstraint(Sketcher.Constraint("Coincident", 17, 2, 18, 1))
sketch11.addConstraint(Sketcher.Constraint("Coincident", 18, 2, 19, 1))
sketch11.addConstraint(Sketcher.Constraint("Coincident", 19, 2, 16, 1))
sketch11.addConstraint(Sketcher.Constraint("Coincident", 20, 2, 21, 1))
sketch11.addConstraint(Sketcher.Constraint("Coincident", 21, 2, 22, 1))
sketch11.addConstraint(Sketcher.Constraint("Coincident", 22, 2, 23, 1))
sketch11.addConstraint(Sketcher.Constraint("Coincident", 23, 2, 20, 1))
sketch11.addConstraint(Sketcher.Constraint("Vertical", 0))
sketch11.addConstraint(Sketcher.Constraint("Horizontal", 1))
sketch11.addConstraint(Sketcher.Constraint("Vertical", 2))
sketch11.addConstraint(Sketcher.Constraint("Horizontal", 3))
sketch11.addConstraint(Sketcher.Constraint("Vertical", 4))
sketch11.addConstraint(Sketcher.Constraint("Horizontal", 5))
sketch11.addConstraint(Sketcher.Constraint("Vertical", 6))
sketch11.addConstraint(Sketcher.Constraint("Horizontal", 7))
sketch11.addConstraint(Sketcher.Constraint("Vertical", 8))
sketch11.addConstraint(Sketcher.Constraint("Horizontal", 9))
sketch11.addConstraint(Sketcher.Constraint("Vertical", 10))
sketch11.addConstraint(Sketcher.Constraint("Horizontal", 11))
sketch11.addConstraint(Sketcher.Constraint("Vertical", 12))
sketch11.addConstraint(Sketcher.Constraint("Horizontal", 13))
sketch11.addConstraint(Sketcher.Constraint("Vertical", 14))
sketch11.addConstraint(Sketcher.Constraint("Horizontal", 15))
sketch11.addConstraint(Sketcher.Constraint("Vertical", 16))
sketch11.addConstraint(Sketcher.Constraint("Horizontal", 17))
sketch11.addConstraint(Sketcher.Constraint("Vertical", 18))
sketch11.addConstraint(Sketcher.Constraint("Horizontal", 19))
sketch11.addConstraint(Sketcher.Constraint("Vertical", 20))
sketch11.addConstraint(Sketcher.Constraint("Horizontal", 21))
sketch11.addConstraint(Sketcher.Constraint("Vertical", 22))
sketch11.addConstraint(Sketcher.Constraint("Horizontal", 23))
sketch11.addConstraint(Sketcher.Constraint("Symmetric", 9, 2, 12, 2, -2))
sketch11.addConstraint(Sketcher.Constraint("Symmetric", 11, 2, 14, 2, -2))
sketch11.addConstraint(Sketcher.Constraint("Symmetric", 5, 2, 16, 2, -2))
sketch11.addConstraint(Sketcher.Constraint("Symmetric", 7, 2, 18, 2, -2))
sketch11.addConstraint(Sketcher.Constraint("Symmetric", 1, 2, 20, 2, -2))
sketch11.addConstraint(Sketcher.Constraint("Symmetric", 3, 2, 22, 2, -2))
sketch11.addConstraint(Sketcher.Constraint("Vertical", 3, 2, 4, 2))
sketch11.addConstraint(Sketcher.Constraint("Vertical", 2, 2, 5, 2))
sketch11.addConstraint(Sketcher.Constraint("Equal", 15, 0))
sketch11.addConstraint(Sketcher.Constraint("Equal", 2, 4))
sketch11.addConstraint(Sketcher.Constraint("DistanceX", 9, 1, 9, 2, 4.0))
sketch11.addConstraint(Sketcher.Constraint("DistanceY", 0, 2, 4, 2, 32.0))
sketch11.addConstraint(Sketcher.Constraint("DistanceX", 8, 2, 4, 2, 2.0))
sketch11.addConstraint(Sketcher.Constraint("DistanceX", 1, 1, 1, 2, 8.25))
sketch11.addConstraint(Sketcher.Constraint("DistanceX", -1, 1, 1, 2, 16.5))
sketch11.addConstraint(Sketcher.Constraint("DistanceY", -1, 1, 8, 2, 30.5))
sketch11.addConstraint(Sketcher.Constraint("DistanceY", 8, 1, 8, 2, 7.625))
sketch11.addConstraint(Sketcher.Constraint("DistanceY", 4, 2, 10, 2, 13.25))
sketch11.setExpression("Constraints[58]", "Params.sketch11_width")
sketch11.setExpression("Constraints[61]", "Params.sketch11_width2")
pad3 = body.newObject("PartDesign::Pad", "Pad002")
pad3.Profile = sketch11
pad3.setExpression("Length", "Params.pad3_length")
pad3.Reversed = True

# Sketch on XY plane
sketch12 = body.newObject("Sketcher::SketchObject", "Sketch011")
sketch12.AttachmentSupport = (doc.getObject("XY_Plane"), [""])
sketch12.MapMode = "FlatFace"
sketch12.AttachmentOffset = App.Placement(V(0, 0, -26.375), App.Rotation())
sketch12.addGeometry(Part.LineSegment(V(8.25, 2, 0), V(8.25, 10, 0)), False)
sketch12.addGeometry(Part.LineSegment(V(8.25, 10, 0), V(16.5, 10, 0)), False)
sketch12.addGeometry(Part.LineSegment(V(16.5, 10, 0), V(16.5, 9.6, 0)), False)
sketch12.addGeometry(Part.LineSegment(V(16.5, 9.6, 0), V(8.25, 2, 0)), False)
sketch12.addGeometry(Part.LineSegment(V(-8.25, 2, 0), V(-16.5, 9.6, 0)), False)
sketch12.addGeometry(Part.LineSegment(V(-16.5, 9.6, 0), V(-16.5, 10, 0)), False)
sketch12.addGeometry(Part.LineSegment(V(-16.5, 10, 0), V(-8.25, 10, 0)), False)
sketch12.addGeometry(Part.LineSegment(V(-8.25, 10, 0), V(-8.25, 2, 0)), False)
sketch12.addConstraint(Sketcher.Constraint("Coincident", 0, 2, 1, 1))
sketch12.addConstraint(Sketcher.Constraint("Coincident", 1, 2, 2, 1))
sketch12.addConstraint(Sketcher.Constraint("Coincident", 2, 2, 3, 1))
sketch12.addConstraint(Sketcher.Constraint("Coincident", 3, 2, 0, 1))
sketch12.addConstraint(Sketcher.Constraint("Coincident", 4, 2, 5, 1))
sketch12.addConstraint(Sketcher.Constraint("Coincident", 5, 2, 6, 1))
sketch12.addConstraint(Sketcher.Constraint("Coincident", 6, 2, 7, 1))
sketch12.addConstraint(Sketcher.Constraint("Coincident", 7, 2, 4, 1))
sketch12.addConstraint(Sketcher.Constraint("Vertical", 0))
sketch12.addConstraint(Sketcher.Constraint("Horizontal", 1))
sketch12.addConstraint(Sketcher.Constraint("Vertical", 2))
sketch12.addConstraint(Sketcher.Constraint("Vertical", 5))
sketch12.addConstraint(Sketcher.Constraint("Horizontal", 6))
sketch12.addConstraint(Sketcher.Constraint("Vertical", 7))
sketch12.addConstraint(Sketcher.Constraint("Symmetric", 2, 2, 4, 2, -2))
sketch12.addConstraint(Sketcher.Constraint("Symmetric", 0, 2, 6, 2, -2))
sketch12.addConstraint(Sketcher.Constraint("Horizontal", 3, 2, 7, 2))
sketch12.addConstraint(Sketcher.Constraint("DistanceY", 0, 1, 0, 2, 8.0))
sketch12.addConstraint(Sketcher.Constraint("DistanceY", 2, 2, 2, 1, 0.4))
sketch12.addConstraint(Sketcher.Constraint("DistanceY", -1, 1, 0, 2, 10.0))
sketch12.addConstraint(Sketcher.Constraint("DistanceX", 4, 2, 2, 2, 33.0))
sketch12.addConstraint(Sketcher.Constraint("DistanceX", 1, 1, 1, 2, 8.25))
sketch12.setExpression("Constraints[17]", "Params.sketch12_height")
sketch12.setExpression("Constraints[18]", "Params.sketch12_height2")
sketch12.setExpression("Constraints[21]", "Params.sketch12_width")
pocket9 = body.newObject("PartDesign::Pocket", "Pocket008")
pocket9.Profile = sketch12
pocket9.setExpression("Length", "Params.pocket9_length")
pocket9.Reversed = True

# Sketch on YZ plane
sketch13 = body.newObject("Sketcher::SketchObject", "Sketch012")
sketch13.AttachmentSupport = (doc.getObject("YZ_Plane"), [""])
sketch13.MapMode = "FlatFace"
sketch13.AttachmentOffset = App.Placement(V(0, 0, -10.25), App.Rotation())
sketch13.addGeometry(Part.LineSegment(V(2, 22.88, 0), V(9.62, 30.5, 0)), False)
sketch13.addGeometry(Part.LineSegment(V(9.62, 30.5, 0), V(10, 30.5, 0)), False)
sketch13.addGeometry(Part.LineSegment(V(10, 30.5, 0), V(10, 22.88, 0)), False)
sketch13.addGeometry(Part.LineSegment(V(10, 22.88, 0), V(2, 22.88, 0)), False)
sketch13.addConstraint(Sketcher.Constraint("Coincident", 0, 2, 1, 1))
sketch13.addConstraint(Sketcher.Constraint("Coincident", 1, 2, 2, 1))
sketch13.addConstraint(Sketcher.Constraint("Coincident", 2, 2, 3, 1))
sketch13.addConstraint(Sketcher.Constraint("Coincident", 3, 2, 0, 1))
sketch13.addConstraint(Sketcher.Constraint("Horizontal", 1))
sketch13.addConstraint(Sketcher.Constraint("Vertical", 2))
sketch13.addConstraint(Sketcher.Constraint("Horizontal", 3))
sketch13.addConstraint(Sketcher.Constraint("DistanceX", 3, 2, 3, 1, 8.0))
sketch13.addConstraint(Sketcher.Constraint("Angle", 0, Q("45 deg")))
sketch13.addConstraint(Sketcher.Constraint("DistanceX", -1, 1, 1, 2, 10.0))
sketch13.addConstraint(Sketcher.Constraint("DistanceY", -1, 1, 0, 2, 30.5))
sketch13.addConstraint(Sketcher.Constraint("DistanceX", 1, 1, 1, 2, 0.375))
sketch13.setExpression("Constraints[7]", "Params.sketch13_width")
pocket10 = body.newObject("PartDesign::Pocket", "Pocket009")
pocket10.Profile = sketch13
pocket10.setExpression("Length", "Params.pocket10_length")
pocket10.Reversed = True

# Sketch on XY plane
sketch14 = body.newObject("Sketcher::SketchObject", "Sketch013")
sketch14.AttachmentSupport = (doc.getObject("XY_Plane"), [""])
sketch14.MapMode = "FlatFace"
sketch14.AttachmentOffset = App.Placement(V(0, 0, -28.5), App.Rotation())
sketch14.addGeometry(Part.LineSegment(V(16.5, 7.6, 0), V(20, 7.6, 0)), False)
sketch14.addGeometry(Part.LineSegment(V(20, 7.6, 0), V(20, 2, 0)), False)
sketch14.addGeometry(Part.LineSegment(V(20, 2, 0), V(16.5, 2, 0)), False)
sketch14.addGeometry(Part.LineSegment(V(16.5, 2, 0), V(16.5, 7.6, 0)), False)
sketch14.addGeometry(Part.LineSegment(V(-16.5, 9.6, 0), V(-16.5, 2, 0)), False)
sketch14.addGeometry(Part.LineSegment(V(-16.5, 2, 0), V(-20, 2, 0)), False)
sketch14.addGeometry(Part.LineSegment(V(-20, 2, 0), V(-20, 9.6, 0)), False)
sketch14.addGeometry(Part.LineSegment(V(-20, 9.6, 0), V(-16.5, 9.6, 0)), False)
sketch14.addConstraint(Sketcher.Constraint("Coincident", 0, 2, 1, 1))
sketch14.addConstraint(Sketcher.Constraint("Coincident", 1, 2, 2, 1))
sketch14.addConstraint(Sketcher.Constraint("Coincident", 2, 2, 3, 1))
sketch14.addConstraint(Sketcher.Constraint("Coincident", 3, 2, 0, 1))
sketch14.addConstraint(Sketcher.Constraint("Coincident", 4, 2, 5, 1))
sketch14.addConstraint(Sketcher.Constraint("Coincident", 5, 2, 6, 1))
sketch14.addConstraint(Sketcher.Constraint("Coincident", 6, 2, 7, 1))
sketch14.addConstraint(Sketcher.Constraint("Coincident", 7, 2, 4, 1))
sketch14.addConstraint(Sketcher.Constraint("Horizontal", 0))
sketch14.addConstraint(Sketcher.Constraint("Vertical", 1))
sketch14.addConstraint(Sketcher.Constraint("Horizontal", 2))
sketch14.addConstraint(Sketcher.Constraint("Vertical", 3))
sketch14.addConstraint(Sketcher.Constraint("Vertical", 4))
sketch14.addConstraint(Sketcher.Constraint("Horizontal", 5))
sketch14.addConstraint(Sketcher.Constraint("Vertical", 6))
sketch14.addConstraint(Sketcher.Constraint("Horizontal", 7))
sketch14.addConstraint(Sketcher.Constraint("Symmetric", 2, 2, 4, 2, -2))
sketch14.addConstraint(Sketcher.Constraint("Equal", 2, 5))
sketch14.addConstraint(Sketcher.Constraint("DistanceX", 0, 1, 0, 2, 3.5))
sketch14.addConstraint(Sketcher.Constraint("DistanceX", -1, 1, 0, 2, 20.0))
sketch14.addConstraint(Sketcher.Constraint("DistanceY", 3, 2, 6, 2, 2.0))
sketch14.addConstraint(Sketcher.Constraint("DistanceY", -1, 1, 0, 2, 7.6))
sketch14.addConstraint(Sketcher.Constraint("DistanceY", 1, 2, 1, 1, 5.601315))
sketch14.setExpression("Constraints[18]", "Params.sketch14_width")
pad4 = body.newObject("PartDesign::Pad", "Pad003")
pad4.Profile = sketch14
pad4.setExpression("Length", "Params.pad4_length")
pad4.Reversed = True

# Sketch on YZ plane
sketch15 = body.newObject("Sketcher::SketchObject", "Sketch014")
sketch15.AttachmentSupport = (doc.getObject("YZ_Plane"), [""])
sketch15.MapMode = "FlatFace"
sketch15.AttachmentOffset = App.Placement(V(0, 0, 16.5), App.Rotation())
sketch15.addGeometry(Part.LineSegment(V(7.6, -30.3, 0), V(2, -30.3, 0)), False)
sketch15.addGeometry(Part.LineSegment(V(2, -30.3, 0), V(2, -26.4, 0)), False)
sketch15.addGeometry(Part.LineSegment(V(2, -26.4, 0), V(7.6, -26.4, 0)), False)
sketch15.addGeometry(Part.LineSegment(V(7.6, -26.4, 0), V(7.6, -30.3, 0)), False)
sketch15.addConstraint(Sketcher.Constraint("Coincident", 0, 2, 1, 1))
sketch15.addConstraint(Sketcher.Constraint("Coincident", 1, 2, 2, 1))
sketch15.addConstraint(Sketcher.Constraint("Coincident", 2, 2, 3, 1))
sketch15.addConstraint(Sketcher.Constraint("Coincident", 3, 2, 0, 1))
sketch15.addConstraint(Sketcher.Constraint("Horizontal", 0))
sketch15.addConstraint(Sketcher.Constraint("Vertical", 1))
sketch15.addConstraint(Sketcher.Constraint("Horizontal", 2))
sketch15.addConstraint(Sketcher.Constraint("Vertical", 3))
sketch15.addConstraint(Sketcher.Constraint("DistanceX", 0, 2, 0, 1, 5.6))
sketch15.addConstraint(Sketcher.Constraint("DistanceX", -1, 1, 0, 2, 2.0))
sketch15.addConstraint(Sketcher.Constraint("DistanceY", 0, 2, -1, 1, 30.3))
sketch15.addConstraint(Sketcher.Constraint("DistanceY", 1, 1, 1, 2, 3.925))
sketch15.setExpression("Constraints[8]", "Params.sketch15_width")
pad5 = body.newObject("PartDesign::Pad", "Pad004")
pad5.Profile = sketch15
pad5.setExpression("Length", "Params.pad5_length")
pad5.Reversed = True

# Sketch on XY plane
sketch16 = body.newObject("Sketcher::SketchObject", "Sketch015")
sketch16.AttachmentSupport = (doc.getObject("XY_Plane"), [""])
sketch16.MapMode = "FlatFace"
sketch16.AttachmentOffset = App.Placement(V(0, 0, -26.375), App.Rotation())
sketch16.addGeometry(Part.LineSegment(V(16.5, 9.6, 0), V(16.5, 7.6, 0)), False)
sketch16.addGeometry(Part.LineSegment(V(16.5, 7.6, 0), V(14.28516, 7.559663, 0)), False)
sketch16.addGeometry(Part.LineSegment(V(14.28516, 7.559663, 0), V(16.5, 9.6, 0)), False)
sketch16.addConstraint(Sketcher.Constraint("Coincident", 0, 2, 1, 1))
sketch16.addConstraint(Sketcher.Constraint("Coincident", 1, 2, 2, 1))
sketch16.addConstraint(Sketcher.Constraint("Coincident", 2, 2, 0, 1))
sketch16.addConstraint(Sketcher.Constraint("Vertical", 0))
sketch16.addConstraint(Sketcher.Constraint("DistanceY", 0, 2, 0, 1, 2.0))
sketch16.addConstraint(Sketcher.Constraint("DistanceX", -1, 1, 0, 2, 16.5))
sketch16.addConstraint(Sketcher.Constraint("DistanceY", -1, 1, 0, 2, 7.6))
sketch16.addConstraint(Sketcher.Constraint("DistanceX", -1, 1, 1, 2, 14.28516))
sketch16.addConstraint(Sketcher.Constraint("Distance", 1, 2.215207))
sketch16.setExpression("Constraints[4]", "Params.sketch16_height")
pocket11 = body.newObject("PartDesign::Pocket", "Pocket010")
pocket11.Profile = sketch16
pocket11.setExpression("Length", "Params.pocket11_length")
pocket11.Reversed = True

# Sketch on XY plane
sketch17 = body.newObject("Sketcher::SketchObject", "Sketch016")
sketch17.AttachmentSupport = (doc.getObject("XY_Plane"), [""])
sketch17.MapMode = "FlatFace"
sketch17.AttachmentOffset = App.Placement(V(0, 0, -30.3), App.Rotation())
sketch17.addGeometry(Part.Circle(V(17.2, 4.8, 0), V(0, 0, 1), 1.4), False)
sketch17.addConstraint(Sketcher.Constraint("Diameter", 0, 2.8))
sketch17.addConstraint(Sketcher.Constraint("DistanceX", -1, 1, 0, 3, 17.25))
sketch17.addConstraint(Sketcher.Constraint("DistanceY", -1, 1, 0, 3, 4.799342))
sketch17.setExpression("Constraints[0]", "Params.sketch17_diameter")
pocket12 = body.newObject("PartDesign::Pocket", "Pocket011")
pocket12.Profile = sketch17
pocket12.setExpression("Length", "Params.pocket12_length")
pocket12.Reversed = True

# Sketch on YZ plane
sketch18 = body.newObject("Sketcher::SketchObject", "Sketch017")
sketch18.AttachmentSupport = (doc.getObject("YZ_Plane"), [""])
sketch18.MapMode = "FlatFace"
sketch18.AttachmentOffset = App.Placement(V(0, 0, -16.5), App.Rotation())
sketch18.addGeometry(Part.LineSegment(V(9.6, -26.4, 0), V(2, -26.4, 0)), False)
sketch18.addGeometry(Part.LineSegment(V(2, -26.4, 0), V(2, -30.3, 0)), False)
sketch18.addGeometry(Part.LineSegment(V(2, -30.3, 0), V(9.6, -30.3, 0)), False)
sketch18.addGeometry(Part.LineSegment(V(9.6, -30.3, 0), V(9.6, -26.4, 0)), False)
sketch18.addConstraint(Sketcher.Constraint("Coincident", 0, 2, 1, 1))
sketch18.addConstraint(Sketcher.Constraint("Coincident", 1, 2, 2, 1))
sketch18.addConstraint(Sketcher.Constraint("Coincident", 2, 2, 3, 1))
sketch18.addConstraint(Sketcher.Constraint("Coincident", 3, 2, 0, 1))
sketch18.addConstraint(Sketcher.Constraint("Horizontal", 0))
sketch18.addConstraint(Sketcher.Constraint("Vertical", 1))
sketch18.addConstraint(Sketcher.Constraint("Horizontal", 2))
sketch18.addConstraint(Sketcher.Constraint("Vertical", 3))
sketch18.addConstraint(Sketcher.Constraint("DistanceX", 0, 2, 0, 1, 7.6))
sketch18.addConstraint(Sketcher.Constraint("DistanceX", -1, 1, 0, 2, 2.0))
sketch18.addConstraint(Sketcher.Constraint("DistanceY", 1, 2, -1, 1, 30.3))
sketch18.addConstraint(Sketcher.Constraint("DistanceY", 1, 2, 1, 1, 3.925))
sketch18.setExpression("Constraints[8]", "Params.sketch18_width")
pad6 = body.newObject("PartDesign::Pad", "Pad005")
pad6.Profile = sketch18
pad6.setExpression("Length", "Params.pad6_length")

# Sketch on XY plane
sketch19 = body.newObject("Sketcher::SketchObject", "Sketch018")
sketch19.AttachmentSupport = (doc.getObject("XY_Plane"), [""])
sketch19.MapMode = "FlatFace"
sketch19.AttachmentOffset = App.Placement(V(0, 0, -30.3), App.Rotation())
sketch19.addGeometry(Part.LineSegment(V(-13.6, 7, 0), V(-17.1, 10.2, 0)), False)
sketch19.addGeometry(Part.LineSegment(V(-17.1, 10.2, 0), V(-13.6, 10.2, 0)), False)
sketch19.addGeometry(Part.LineSegment(V(-13.6, 10.2, 0), V(-13.6, 7, 0)), False)
sketch19.addConstraint(Sketcher.Constraint("Coincident", 0, 2, 1, 1))
sketch19.addConstraint(Sketcher.Constraint("Coincident", 1, 2, 2, 1))
sketch19.addConstraint(Sketcher.Constraint("Coincident", 2, 2, 0, 1))
sketch19.addConstraint(Sketcher.Constraint("Horizontal", 1))
sketch19.addConstraint(Sketcher.Constraint("Vertical", 2))
sketch19.addConstraint(Sketcher.Constraint("Distance", 0, 4.72818))
sketch19.addConstraint(Sketcher.Constraint("DistanceX", 1, 1, 1, 2, 3.477513))
sketch19.addConstraint(Sketcher.Constraint("DistanceX", 1, 2, -1, 1, 13.624579))
sketch19.addConstraint(Sketcher.Constraint("DistanceY", -1, 1, 0, 2, 10.154655))
pocket13 = body.newObject("PartDesign::Pocket", "Pocket012")
pocket13.Profile = sketch19
pocket13.setExpression("Length", "Params.pocket13_length")
pocket13.Reversed = True

# Sketch on XY plane
sketch20 = body.newObject("Sketcher::SketchObject", "Sketch019")
sketch20.AttachmentSupport = (doc.getObject("XY_Plane"), [""])
sketch20.MapMode = "FlatFace"
sketch20.AttachmentOffset = App.Placement(V(0, 0, -30.3), App.Rotation())
sketch20.addGeometry(Part.Circle(V(-17.2, 4.8, 0), V(0, 0, 1), 1.4), False)
sketch20.addConstraint(Sketcher.Constraint("Diameter", 0, 2.8))
sketch20.addConstraint(Sketcher.Constraint("DistanceY", -1, 1, 0, 3, 4.8))
sketch20.addConstraint(Sketcher.Constraint("DistanceX", 0, 3, -1, 1, 17.25))
sketch20.setExpression("Constraints[0]", "Params.sketch20_diameter")
pocket14 = body.newObject("PartDesign::Pocket", "Pocket013")
pocket14.Profile = sketch20
pocket14.setExpression("Length", "Params.pocket14_length")
pocket14.Reversed = True

# Sketch on XY plane
sketch21 = body.newObject("Sketcher::SketchObject", "Sketch020")
sketch21.AttachmentSupport = (doc.getObject("XY_Plane"), [""])
sketch21.MapMode = "FlatFace"
sketch21.AttachmentOffset = App.Placement(V(0, 0, -32.5), App.Rotation())
sketch21.addGeometry(Part.LineSegment(V(10, 2, 0), V(10, 0, 0)), False)
sketch21.addGeometry(Part.LineSegment(V(10, 0, 0), V(-10, 0, 0)), False)
sketch21.addGeometry(Part.LineSegment(V(-10, 0, 0), V(-10, 2, 0)), False)
sketch21.addGeometry(Part.LineSegment(V(-10, 2, 0), V(10, 2, 0)), False)
sketch21.addConstraint(Sketcher.Constraint("Coincident", 0, 2, 1, 1))
sketch21.addConstraint(Sketcher.Constraint("Coincident", 1, 2, 2, 1))
sketch21.addConstraint(Sketcher.Constraint("Coincident", 2, 2, 3, 1))
sketch21.addConstraint(Sketcher.Constraint("Coincident", 3, 2, 0, 1))
sketch21.addConstraint(Sketcher.Constraint("Vertical", 0))
sketch21.addConstraint(Sketcher.Constraint("Horizontal", 1))
sketch21.addConstraint(Sketcher.Constraint("Vertical", 2))
sketch21.addConstraint(Sketcher.Constraint("Horizontal", 3))
sketch21.addConstraint(Sketcher.Constraint("Symmetric", 0, 2, 1, 2, -1, 1))
sketch21.addConstraint(Sketcher.Constraint("DistanceX", 1, 2, 1, 1, 20.0))
sketch21.addConstraint(Sketcher.Constraint("DistanceY", 0, 2, 0, 1, 2.0))
sketch21.setExpression("Constraints[9]", "Params.sketch21_width")
sketch21.setExpression("Constraints[10]", "Params.sketch21_height")
pocket15 = body.newObject("PartDesign::Pocket", "Pocket014")
pocket15.Profile = sketch21
pocket15.setExpression("Length", "Params.pocket15_length")
pocket15.Reversed = True
doc.recompute()

fillet = body.newObject("PartDesign::Fillet", "Fillet")
fillet.Base = (pocket15, edges_at(pocket15, [(22, 9.5, 32.5), (-22, 9.5, 32.5)]))
fillet.setExpression("Radius", "Params.fillet_radius")

doc.recompute()
